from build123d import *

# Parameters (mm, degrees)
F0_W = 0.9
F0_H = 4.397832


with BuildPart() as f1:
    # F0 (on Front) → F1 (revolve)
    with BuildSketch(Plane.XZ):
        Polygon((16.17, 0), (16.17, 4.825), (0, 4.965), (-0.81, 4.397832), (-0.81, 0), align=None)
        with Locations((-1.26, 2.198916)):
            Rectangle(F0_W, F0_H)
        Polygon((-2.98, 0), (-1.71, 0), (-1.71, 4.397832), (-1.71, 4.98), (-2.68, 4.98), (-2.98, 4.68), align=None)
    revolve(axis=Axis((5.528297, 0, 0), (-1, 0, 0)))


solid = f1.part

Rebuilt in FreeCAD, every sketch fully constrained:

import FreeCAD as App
import Part
import Sketcher
from FreeCAD import Vector
Q = App.Units.Quantity


def add_polygon(sketch, points):
    """Adds a closed chain of lines whose ends are joined by coincident constraints."""
    first, n = sketch.GeometryCount, len(points)
    for a, b in zip(points, points[1:] + points[:1]):
        sketch.addGeometry(Part.LineSegment(App.Vector(*a, 0), App.Vector(*b, 0)), False)
    for i in range(n):
        sketch.addConstraint(Sketcher.Constraint("Coincident", first + i, 2, first + (i + 1) % n, 1))

doc = App.newDocument("Part")
body = doc.addObject("PartDesign::Body", "Body")

# Sketch on XZ plane
sketch1 = body.newObject("Sketcher::SketchObject", "Sketch")
sketch1.AttachmentSupport = (doc.getObject("XZ_Plane"), [""])
sketch1.MapMode = "FlatFace"
add_polygon(sketch1, [(16.17, 0), (16.17, 4.825), (0, 4.965), (-0.81, 4.397832), (-1.71, 4.397832), (-1.71, 4.98), (-2.68, 4.98), (-2.98, 4.68), (-2.98, 0)])  # lines 0-8
sketch1.addConstraint([
    Sketcher.Constraint("Vertical", 0),
    Sketcher.Constraint("Horizontal", 3),
    Sketcher.Constraint("Vertical", 4),
    Sketcher.Constraint("Horizontal", 5),
    Sketcher.Constraint("Vertical", 7),
    Sketcher.Constraint("Horizontal", 8),
    Sketcher.Constraint("PointOnObject", 1, 2, -2),
    Sketcher.Constraint("PointOnObject", 7, 2, -1),
    Sketcher.Constraint("Angle", 2, Q("-145.000005 deg")),
    Sketcher.Constraint("Angle", 6, Q("-135 deg")),
    Sketcher.Constraint("DistanceX", 3, 2, 3, 1, Q("0.9 mm")),
    Sketcher.Constraint("DistanceX", 5, 2, 5, 1, Q("0.97 mm")),
    Sketcher.Constraint("DistanceX", 8, 1, 8, 2, Q("19.15 mm")),
    Sketcher.Constraint("DistanceY", 7, 2, 7, 1, Q("4.68 mm")),
    Sketcher.Constraint("DistanceX", 6, 2, 5, 2, Q("0.3 mm")),
    Sketcher.Constraint("DistanceY", 0, 1, 0, 2, Q("4.825 mm")),
    Sketcher.Constraint("DistanceX", -1, 1, 0, 2, Q("16.17 mm")),
    Sketcher.Constraint("DistanceY", 0, 2, 1, 2, Q("0.14 mm")),
])
revolution = body.newObject("PartDesign::Revolution", "Revolution")
revolution.Profile = sketch1
revolution.ReferenceAxis = (sketch1, ["H_Axis"])
revolution.Angle = 360

doc.recompute()
